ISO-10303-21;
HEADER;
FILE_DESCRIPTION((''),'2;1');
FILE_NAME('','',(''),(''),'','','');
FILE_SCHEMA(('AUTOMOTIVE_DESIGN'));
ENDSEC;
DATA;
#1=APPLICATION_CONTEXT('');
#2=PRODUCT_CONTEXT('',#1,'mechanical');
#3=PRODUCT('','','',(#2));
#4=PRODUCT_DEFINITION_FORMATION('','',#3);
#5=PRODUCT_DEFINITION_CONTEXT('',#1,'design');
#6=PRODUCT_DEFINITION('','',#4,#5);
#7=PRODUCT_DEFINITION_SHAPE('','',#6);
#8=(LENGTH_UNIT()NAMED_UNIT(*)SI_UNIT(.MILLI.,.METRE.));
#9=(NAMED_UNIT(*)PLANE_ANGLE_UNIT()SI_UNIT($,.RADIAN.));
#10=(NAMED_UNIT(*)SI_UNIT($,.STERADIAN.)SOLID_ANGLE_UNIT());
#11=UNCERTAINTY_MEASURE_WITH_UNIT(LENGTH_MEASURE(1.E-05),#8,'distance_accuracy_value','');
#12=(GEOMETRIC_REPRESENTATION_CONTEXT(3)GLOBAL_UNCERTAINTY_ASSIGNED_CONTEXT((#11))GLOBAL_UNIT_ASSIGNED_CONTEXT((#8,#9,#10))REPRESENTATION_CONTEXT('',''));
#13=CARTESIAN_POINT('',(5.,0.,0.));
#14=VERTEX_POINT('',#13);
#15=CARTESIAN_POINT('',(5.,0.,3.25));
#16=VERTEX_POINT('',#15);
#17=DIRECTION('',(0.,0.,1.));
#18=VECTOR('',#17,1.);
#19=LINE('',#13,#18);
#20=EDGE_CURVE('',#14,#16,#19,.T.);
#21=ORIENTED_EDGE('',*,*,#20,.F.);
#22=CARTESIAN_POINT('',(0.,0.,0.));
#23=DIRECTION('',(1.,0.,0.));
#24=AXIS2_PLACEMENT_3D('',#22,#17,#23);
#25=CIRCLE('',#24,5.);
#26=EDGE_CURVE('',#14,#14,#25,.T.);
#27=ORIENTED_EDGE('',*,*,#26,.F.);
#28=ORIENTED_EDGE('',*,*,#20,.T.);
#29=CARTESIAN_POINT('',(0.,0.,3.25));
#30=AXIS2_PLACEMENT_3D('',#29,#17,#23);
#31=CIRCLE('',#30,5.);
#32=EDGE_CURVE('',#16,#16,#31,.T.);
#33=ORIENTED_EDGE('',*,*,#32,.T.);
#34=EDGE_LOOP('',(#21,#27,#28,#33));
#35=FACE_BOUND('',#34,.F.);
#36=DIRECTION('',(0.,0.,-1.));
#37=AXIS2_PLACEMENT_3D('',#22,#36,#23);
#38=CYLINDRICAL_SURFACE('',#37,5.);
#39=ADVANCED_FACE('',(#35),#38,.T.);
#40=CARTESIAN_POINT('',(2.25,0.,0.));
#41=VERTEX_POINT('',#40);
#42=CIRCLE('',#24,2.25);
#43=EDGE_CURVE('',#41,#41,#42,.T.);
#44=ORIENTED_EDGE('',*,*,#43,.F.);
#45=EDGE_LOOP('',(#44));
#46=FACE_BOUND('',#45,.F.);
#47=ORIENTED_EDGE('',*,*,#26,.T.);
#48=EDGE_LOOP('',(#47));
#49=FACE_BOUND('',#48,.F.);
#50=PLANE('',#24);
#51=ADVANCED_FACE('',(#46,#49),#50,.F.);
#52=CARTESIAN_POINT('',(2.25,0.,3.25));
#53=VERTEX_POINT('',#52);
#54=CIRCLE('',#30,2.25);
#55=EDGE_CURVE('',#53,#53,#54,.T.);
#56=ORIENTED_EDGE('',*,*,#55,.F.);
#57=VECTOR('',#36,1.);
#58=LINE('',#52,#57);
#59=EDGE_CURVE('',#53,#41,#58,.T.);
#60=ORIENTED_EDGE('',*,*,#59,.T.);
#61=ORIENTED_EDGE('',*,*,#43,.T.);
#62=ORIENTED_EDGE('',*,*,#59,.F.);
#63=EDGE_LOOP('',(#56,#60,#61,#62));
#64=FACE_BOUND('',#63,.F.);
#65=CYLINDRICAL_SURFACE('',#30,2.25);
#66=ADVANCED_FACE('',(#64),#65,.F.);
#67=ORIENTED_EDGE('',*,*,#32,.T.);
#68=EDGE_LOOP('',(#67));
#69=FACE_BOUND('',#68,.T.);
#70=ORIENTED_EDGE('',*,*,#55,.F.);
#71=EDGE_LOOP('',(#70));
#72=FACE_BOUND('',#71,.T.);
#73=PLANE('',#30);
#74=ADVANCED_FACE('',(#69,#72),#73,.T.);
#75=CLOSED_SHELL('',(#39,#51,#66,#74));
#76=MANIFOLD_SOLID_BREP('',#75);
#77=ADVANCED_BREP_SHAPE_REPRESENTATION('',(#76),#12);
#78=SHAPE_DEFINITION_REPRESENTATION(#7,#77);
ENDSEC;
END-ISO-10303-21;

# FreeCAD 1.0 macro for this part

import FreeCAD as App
import Part
import Sketcher
from FreeCAD import Vector
Q = App.Units.Quantity

doc = App.newDocument("Part")
body = doc.addObject("PartDesign::Body", "Body")

# Sketch on XY plane
sketch1 = doc.addObject("Sketcher::SketchObject", "Sketch")
body.addObject(sketch1)
sketch1.AttachmentSupport = (doc.XY_Plane, [""])
sketch1.MapMode = "FlatFace"
sketch1.addGeometry(Part.Circle(Vector(0, 0, 0), Vector(0, 0, 1), 5), False)
sketch1.addConstraint(Sketcher.Constraint("Coincident", 0, 3, -1, 1))
sketch1.addConstraint(Sketcher.Constraint("Diameter", 0, Q("10 mm")))
pad1 = doc.addObject("PartDesign::Pad", "Pad")
body.addObject(pad1)
pad1.Profile = sketch1
pad1.Length = 3.25

# Sketch on XY plane
sketch2 = doc.addObject("Sketcher::SketchObject", "Sketch001")
body.addObject(sketch2)
sketch2.AttachmentSupport = (doc.XY_Plane, [""])
sketch2.MapMode = "FlatFace"
sketch2.AttachmentOffset = App.Placement(Vector(0, 0, 3.25), App.Rotation())
sketch2.addGeometry(Part.Circle(Vector(0, 0, 0), Vector(0, 0, 1), 2.25), False)
sketch2.addConstraint(Sketcher.Constraint("Coincident", 0, 3, -1, 1))
sketch2.addConstraint(Sketcher.Constraint("Diameter", 0, Q("4.5 mm")))
pocket1 = doc.addObject("PartDesign::Pocket", "Pocket")
body.addObject(pocket1)
pocket1.Profile = sketch2
pocket1.Type = "ThroughAll"

doc.recompute()
